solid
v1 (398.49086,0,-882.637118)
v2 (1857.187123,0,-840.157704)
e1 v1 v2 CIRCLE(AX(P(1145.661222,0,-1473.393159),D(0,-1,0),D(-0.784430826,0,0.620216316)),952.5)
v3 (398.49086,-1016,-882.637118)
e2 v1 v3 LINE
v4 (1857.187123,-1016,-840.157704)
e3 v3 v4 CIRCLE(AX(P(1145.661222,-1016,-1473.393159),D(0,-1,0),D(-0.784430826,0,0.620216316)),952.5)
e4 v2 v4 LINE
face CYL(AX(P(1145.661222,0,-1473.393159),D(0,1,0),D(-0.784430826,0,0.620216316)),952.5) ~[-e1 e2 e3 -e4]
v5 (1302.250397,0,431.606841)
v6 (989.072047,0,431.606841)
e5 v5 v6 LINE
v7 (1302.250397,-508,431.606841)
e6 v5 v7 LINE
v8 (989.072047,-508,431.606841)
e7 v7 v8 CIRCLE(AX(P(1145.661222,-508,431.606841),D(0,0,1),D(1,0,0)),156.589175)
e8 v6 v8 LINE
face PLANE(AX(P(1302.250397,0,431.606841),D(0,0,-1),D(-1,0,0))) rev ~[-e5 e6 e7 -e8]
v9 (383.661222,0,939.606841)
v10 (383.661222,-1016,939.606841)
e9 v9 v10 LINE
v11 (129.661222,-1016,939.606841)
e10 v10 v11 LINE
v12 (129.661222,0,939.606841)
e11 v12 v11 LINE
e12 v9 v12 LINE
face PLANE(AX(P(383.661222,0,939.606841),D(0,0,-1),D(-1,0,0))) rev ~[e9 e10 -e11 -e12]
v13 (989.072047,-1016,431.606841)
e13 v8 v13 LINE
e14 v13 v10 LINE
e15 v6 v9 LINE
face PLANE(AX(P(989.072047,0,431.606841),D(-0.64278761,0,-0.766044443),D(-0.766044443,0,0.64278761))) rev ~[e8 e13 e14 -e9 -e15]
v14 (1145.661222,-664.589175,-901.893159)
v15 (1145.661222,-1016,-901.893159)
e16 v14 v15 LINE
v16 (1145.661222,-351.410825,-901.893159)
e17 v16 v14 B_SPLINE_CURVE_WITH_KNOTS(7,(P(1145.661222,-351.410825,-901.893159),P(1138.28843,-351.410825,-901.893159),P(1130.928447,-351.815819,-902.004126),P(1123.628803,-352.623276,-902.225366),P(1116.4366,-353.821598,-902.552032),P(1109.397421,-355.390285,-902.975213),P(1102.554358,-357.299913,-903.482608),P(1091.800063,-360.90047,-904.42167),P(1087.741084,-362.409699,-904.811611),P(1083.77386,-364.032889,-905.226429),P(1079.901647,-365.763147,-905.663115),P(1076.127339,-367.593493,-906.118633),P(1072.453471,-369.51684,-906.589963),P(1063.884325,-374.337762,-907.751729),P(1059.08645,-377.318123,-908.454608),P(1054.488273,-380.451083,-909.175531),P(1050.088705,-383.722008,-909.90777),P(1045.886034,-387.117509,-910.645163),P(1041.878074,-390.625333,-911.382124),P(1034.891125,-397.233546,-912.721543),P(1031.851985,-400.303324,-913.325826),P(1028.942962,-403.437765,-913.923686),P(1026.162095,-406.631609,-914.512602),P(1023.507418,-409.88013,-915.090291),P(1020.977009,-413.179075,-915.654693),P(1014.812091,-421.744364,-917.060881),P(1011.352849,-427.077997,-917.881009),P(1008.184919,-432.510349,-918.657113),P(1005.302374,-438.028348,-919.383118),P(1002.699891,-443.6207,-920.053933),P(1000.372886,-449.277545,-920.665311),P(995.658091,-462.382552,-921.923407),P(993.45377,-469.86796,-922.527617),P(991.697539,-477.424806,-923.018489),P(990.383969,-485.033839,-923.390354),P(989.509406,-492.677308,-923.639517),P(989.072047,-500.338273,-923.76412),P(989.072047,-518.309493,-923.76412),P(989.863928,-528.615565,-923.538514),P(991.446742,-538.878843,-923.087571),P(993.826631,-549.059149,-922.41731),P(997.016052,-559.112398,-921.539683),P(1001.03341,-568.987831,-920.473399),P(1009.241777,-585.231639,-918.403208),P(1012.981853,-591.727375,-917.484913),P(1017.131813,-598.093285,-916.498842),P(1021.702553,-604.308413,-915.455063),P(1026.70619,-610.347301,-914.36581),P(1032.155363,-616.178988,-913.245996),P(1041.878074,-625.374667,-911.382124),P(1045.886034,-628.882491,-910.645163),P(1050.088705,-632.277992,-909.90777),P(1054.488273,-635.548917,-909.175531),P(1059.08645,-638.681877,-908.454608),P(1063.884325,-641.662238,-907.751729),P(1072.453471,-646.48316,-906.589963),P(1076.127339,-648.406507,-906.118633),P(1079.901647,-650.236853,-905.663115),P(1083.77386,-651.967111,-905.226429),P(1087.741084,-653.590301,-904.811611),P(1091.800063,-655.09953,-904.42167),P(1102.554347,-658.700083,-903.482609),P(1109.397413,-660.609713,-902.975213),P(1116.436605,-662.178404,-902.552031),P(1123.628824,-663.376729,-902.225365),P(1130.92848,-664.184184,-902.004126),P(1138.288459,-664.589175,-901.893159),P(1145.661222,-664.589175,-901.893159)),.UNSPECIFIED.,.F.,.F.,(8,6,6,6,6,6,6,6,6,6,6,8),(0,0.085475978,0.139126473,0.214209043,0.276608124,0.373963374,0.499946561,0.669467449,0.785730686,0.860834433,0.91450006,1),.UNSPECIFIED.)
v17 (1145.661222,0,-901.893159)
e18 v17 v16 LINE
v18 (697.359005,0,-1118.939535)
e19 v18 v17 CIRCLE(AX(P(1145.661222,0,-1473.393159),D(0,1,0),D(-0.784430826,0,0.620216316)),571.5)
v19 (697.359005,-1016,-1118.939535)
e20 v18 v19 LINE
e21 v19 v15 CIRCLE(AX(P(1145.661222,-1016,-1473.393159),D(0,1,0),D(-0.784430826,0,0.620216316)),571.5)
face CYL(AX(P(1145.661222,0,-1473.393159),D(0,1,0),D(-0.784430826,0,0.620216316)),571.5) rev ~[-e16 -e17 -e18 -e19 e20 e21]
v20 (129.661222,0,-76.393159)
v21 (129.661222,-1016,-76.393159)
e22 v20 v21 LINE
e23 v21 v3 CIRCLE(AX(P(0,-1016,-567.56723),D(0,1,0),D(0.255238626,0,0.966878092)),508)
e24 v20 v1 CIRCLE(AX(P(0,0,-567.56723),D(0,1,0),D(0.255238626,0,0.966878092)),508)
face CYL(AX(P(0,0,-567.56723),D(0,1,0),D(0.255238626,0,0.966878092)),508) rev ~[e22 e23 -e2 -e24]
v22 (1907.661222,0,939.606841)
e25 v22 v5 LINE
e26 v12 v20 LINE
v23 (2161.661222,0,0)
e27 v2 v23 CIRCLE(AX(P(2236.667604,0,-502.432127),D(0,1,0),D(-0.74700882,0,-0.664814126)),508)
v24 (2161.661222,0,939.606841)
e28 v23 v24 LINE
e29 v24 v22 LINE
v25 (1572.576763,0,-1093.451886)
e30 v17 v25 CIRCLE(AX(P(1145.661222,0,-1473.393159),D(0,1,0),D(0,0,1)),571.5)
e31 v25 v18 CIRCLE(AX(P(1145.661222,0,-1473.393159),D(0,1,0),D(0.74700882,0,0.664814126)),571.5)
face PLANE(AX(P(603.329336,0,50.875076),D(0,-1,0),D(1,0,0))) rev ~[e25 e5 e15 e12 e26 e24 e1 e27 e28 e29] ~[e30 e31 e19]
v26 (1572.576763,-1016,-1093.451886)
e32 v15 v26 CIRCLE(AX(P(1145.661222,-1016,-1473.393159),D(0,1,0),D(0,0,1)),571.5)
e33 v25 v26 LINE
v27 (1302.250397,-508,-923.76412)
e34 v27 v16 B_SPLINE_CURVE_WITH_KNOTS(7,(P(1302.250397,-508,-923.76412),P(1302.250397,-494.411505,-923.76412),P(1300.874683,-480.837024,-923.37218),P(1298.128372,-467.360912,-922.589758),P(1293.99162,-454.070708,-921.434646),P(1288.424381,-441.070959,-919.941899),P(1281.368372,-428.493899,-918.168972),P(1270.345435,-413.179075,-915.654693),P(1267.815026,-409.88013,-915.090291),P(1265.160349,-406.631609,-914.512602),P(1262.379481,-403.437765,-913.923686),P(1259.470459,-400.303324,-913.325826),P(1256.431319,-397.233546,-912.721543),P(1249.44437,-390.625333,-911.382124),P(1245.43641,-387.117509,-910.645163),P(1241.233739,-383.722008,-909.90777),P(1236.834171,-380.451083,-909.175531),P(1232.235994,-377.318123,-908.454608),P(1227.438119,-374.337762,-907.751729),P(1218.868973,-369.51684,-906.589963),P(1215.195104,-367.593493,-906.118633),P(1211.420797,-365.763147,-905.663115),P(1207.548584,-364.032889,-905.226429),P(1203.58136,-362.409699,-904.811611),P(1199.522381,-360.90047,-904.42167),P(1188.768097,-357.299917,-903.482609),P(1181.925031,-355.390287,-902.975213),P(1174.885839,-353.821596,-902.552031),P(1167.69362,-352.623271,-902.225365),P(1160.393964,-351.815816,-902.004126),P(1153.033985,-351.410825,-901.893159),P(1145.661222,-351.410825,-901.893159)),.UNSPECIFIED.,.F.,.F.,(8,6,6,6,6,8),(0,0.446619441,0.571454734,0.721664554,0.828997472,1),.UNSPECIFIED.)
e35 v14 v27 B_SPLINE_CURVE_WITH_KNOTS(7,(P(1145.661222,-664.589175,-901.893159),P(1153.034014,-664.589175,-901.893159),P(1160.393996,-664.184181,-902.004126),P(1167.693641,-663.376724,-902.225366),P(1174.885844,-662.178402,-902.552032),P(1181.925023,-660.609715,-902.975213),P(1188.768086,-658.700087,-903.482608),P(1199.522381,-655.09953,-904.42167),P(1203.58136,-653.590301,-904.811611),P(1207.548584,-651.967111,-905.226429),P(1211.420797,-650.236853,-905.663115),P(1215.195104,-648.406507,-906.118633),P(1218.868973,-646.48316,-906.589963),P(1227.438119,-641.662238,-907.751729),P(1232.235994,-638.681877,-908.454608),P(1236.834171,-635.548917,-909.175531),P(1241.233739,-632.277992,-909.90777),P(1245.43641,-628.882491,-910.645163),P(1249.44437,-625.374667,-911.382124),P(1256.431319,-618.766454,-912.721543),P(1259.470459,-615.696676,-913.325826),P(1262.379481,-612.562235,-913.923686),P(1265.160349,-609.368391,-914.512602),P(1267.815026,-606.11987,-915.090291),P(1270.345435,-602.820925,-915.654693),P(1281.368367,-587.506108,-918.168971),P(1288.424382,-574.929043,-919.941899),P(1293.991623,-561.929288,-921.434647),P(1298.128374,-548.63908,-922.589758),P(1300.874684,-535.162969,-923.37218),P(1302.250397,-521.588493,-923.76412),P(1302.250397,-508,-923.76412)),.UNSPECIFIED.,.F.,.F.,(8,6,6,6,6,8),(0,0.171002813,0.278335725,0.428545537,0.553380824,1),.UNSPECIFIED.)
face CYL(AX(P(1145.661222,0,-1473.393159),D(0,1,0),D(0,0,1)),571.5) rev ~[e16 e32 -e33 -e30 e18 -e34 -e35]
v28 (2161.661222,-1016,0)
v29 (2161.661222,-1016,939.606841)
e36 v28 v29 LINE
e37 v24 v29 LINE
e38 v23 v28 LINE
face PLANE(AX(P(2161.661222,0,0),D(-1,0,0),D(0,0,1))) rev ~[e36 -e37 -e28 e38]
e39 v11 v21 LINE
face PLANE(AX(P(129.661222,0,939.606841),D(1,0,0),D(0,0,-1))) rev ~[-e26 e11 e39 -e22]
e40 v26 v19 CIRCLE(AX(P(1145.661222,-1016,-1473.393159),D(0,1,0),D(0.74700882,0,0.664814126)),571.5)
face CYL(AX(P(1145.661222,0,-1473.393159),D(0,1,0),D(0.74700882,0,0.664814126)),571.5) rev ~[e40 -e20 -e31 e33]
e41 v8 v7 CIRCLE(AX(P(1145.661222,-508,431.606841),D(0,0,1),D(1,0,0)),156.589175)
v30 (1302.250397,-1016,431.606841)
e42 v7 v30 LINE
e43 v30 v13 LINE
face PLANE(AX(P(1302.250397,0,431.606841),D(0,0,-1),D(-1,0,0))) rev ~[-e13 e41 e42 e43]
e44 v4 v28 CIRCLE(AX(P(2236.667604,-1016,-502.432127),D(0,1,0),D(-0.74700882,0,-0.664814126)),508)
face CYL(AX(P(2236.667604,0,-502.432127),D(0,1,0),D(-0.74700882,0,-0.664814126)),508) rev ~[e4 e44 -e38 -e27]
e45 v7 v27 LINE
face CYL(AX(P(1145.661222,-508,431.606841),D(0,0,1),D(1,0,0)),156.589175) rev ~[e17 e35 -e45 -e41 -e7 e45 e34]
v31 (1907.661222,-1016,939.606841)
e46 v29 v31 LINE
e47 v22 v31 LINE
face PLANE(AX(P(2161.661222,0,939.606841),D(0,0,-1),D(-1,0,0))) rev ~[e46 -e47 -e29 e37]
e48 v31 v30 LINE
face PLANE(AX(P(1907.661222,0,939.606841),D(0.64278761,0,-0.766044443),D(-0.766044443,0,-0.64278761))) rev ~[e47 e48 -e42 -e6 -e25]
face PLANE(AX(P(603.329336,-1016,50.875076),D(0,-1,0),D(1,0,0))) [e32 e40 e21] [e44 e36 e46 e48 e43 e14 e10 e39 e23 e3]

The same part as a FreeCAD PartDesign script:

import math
import FreeCAD as App
import Part
import Sketcher
Q = App.Units.Quantity

doc = App.newDocument("Part")
body = doc.addObject("PartDesign::Body", "Body")

# Sketch on XZ plane
sketch1 = body.newObject("Sketcher::SketchObject", "Sketch")
sketch1.AttachmentSupport = (doc.getObject("XZ_Plane"), [""])
sketch1.MapMode = "FlatFace"
sketch1.addGeometry(Part.LineSegment(App.Vector(130, 940, 0), App.Vector(130, -76, 0)), False)
sketch1.addGeometry(Part.ArcOfCircle(Part.Circle(App.Vector(0, -568, 0), App.Vector(0, 0, 1), 508), math.radians(-38), math.radians(75)), False)
sketch1.addGeometry(Part.ArcOfCircle(Part.Circle(App.Vector(1146, -1473, 0), App.Vector(0, 0, 1), 952), math.radians(142), math.radians(402)), False)
sketch1.addGeometry(Part.ArcOfCircle(Part.Circle(App.Vector(2237, -502, 0), App.Vector(0, 0, 1), 508), math.radians(98), math.radians(222)), False)
sketch1.addGeometry(Part.LineSegment(App.Vector(2162, 0, 0), App.Vector(2162, 940, 0)), False)
sketch1.addGeometry(Part.LineSegment(App.Vector(2162, 940, 0), App.Vector(1908, 940, 0)), False)
sketch1.addGeometry(Part.LineSegment(App.Vector(1908, 940, 0), App.Vector(1302, 432, 0)), False)
sketch1.addGeometry(Part.LineSegment(App.Vector(1302, 432, 0), App.Vector(989, 432, 0)), False)
sketch1.addGeometry(Part.LineSegment(App.Vector(989, 432, 0), App.Vector(384, 940, 0)), False)
sketch1.addGeometry(Part.LineSegment(App.Vector(384, 940, 0), App.Vector(130, 940, 0)), False)
sketch1.addGeometry(Part.ArcOfCircle(Part.Circle(App.Vector(1146, -1473, 0), App.Vector(0, 0, 1), 572), math.radians(90), math.radians(142)), False)
sketch1.addGeometry(Part.ArcOfCircle(Part.Circle(App.Vector(1146, -1473, 0), App.Vector(0, 0, 1), 572), math.radians(42), math.radians(90)), False)
sketch1.addGeometry(Part.ArcOfCircle(Part.Circle(App.Vector(1146, -1473, 0), App.Vector(0, 0, 1), 572), math.radians(142), math.radians(402)), False)
sketch1.addConstraint(Sketcher.Constraint("Coincident", 0, 2, 1, 2))
sketch1.addConstraint(Sketcher.Constraint("Tangent", 1, 1, 2, 1))
sketch1.addConstraint(Sketcher.Constraint("Tangent", 2, 2, 3, 2))
sketch1.addConstraint(Sketcher.Constraint("Coincident", 3, 1, 4, 1))
sketch1.addConstraint(Sketcher.Constraint("Coincident", 4, 2, 5, 1))
sketch1.addConstraint(Sketcher.Constraint("Coincident", 5, 2, 6, 1))
sketch1.addConstraint(Sketcher.Constraint("Coincident", 6, 2, 7, 1))
sketch1.addConstraint(Sketcher.Constraint("Coincident", 7, 2, 8, 1))
sketch1.addConstraint(Sketcher.Constraint("Coincident", 8, 2, 9, 1))
sketch1.addConstraint(Sketcher.Constraint("Coincident", 9, 2, 0, 1))
sketch1.addConstraint(Sketcher.Constraint("Coincident", 10, 1, 11, 2))
sketch1.addConstraint(Sketcher.Constraint("Coincident", 11, 1, 12, 2))
sketch1.addConstraint(Sketcher.Constraint("Coincident", 12, 1, 10, 2))
sketch1.addConstraint(Sketcher.Constraint("Vertical", 0))
sketch1.addConstraint(Sketcher.Constraint("Vertical", 4))
sketch1.addConstraint(Sketcher.Constraint("Horizontal", 5))
sketch1.addConstraint(Sketcher.Constraint("Horizontal", 7))
sketch1.addConstraint(Sketcher.Constraint("Horizontal", 9))
sketch1.addConstraint(Sketcher.Constraint("Coincident", 10, 3, 2, 3))
sketch1.addConstraint(Sketcher.Constraint("Coincident", 11, 3, 2, 3))
sketch1.addConstraint(Sketcher.Constraint("Equal", 1, 3))
sketch1.addConstraint(Sketcher.Constraint("Equal", 11, 12))
sketch1.addConstraint(Sketcher.Constraint("PointOnObject", 1, 3, -2))
sketch1.addConstraint(Sketcher.Constraint("PointOnObject", 3, 1, -1))
sketch1.addConstraint(Sketcher.Constraint("Horizontal", 5, 2, 8, 2))
sketch1.addConstraint(Sketcher.Constraint("Vertical", 12, 3, 10, 1))
sketch1.addConstraint(Sketcher.Constraint("Equal", 5, 9))
sketch1.addConstraint(Sketcher.Constraint("Equal", 6, 8))
sketch1.addConstraint(Sketcher.Constraint("Radius", 1, Q("20 in")))
sketch1.addConstraint(Sketcher.Constraint("Radius", 2, Q("37.5 in")))
sketch1.addConstraint(Sketcher.Constraint("Radius", 10, Q("22.5 in")))
sketch1.addConstraint(Sketcher.Constraint("DistanceX", 5, 2, 5, 1, Q("10 in")))
sketch1.addConstraint(Sketcher.Constraint("DistanceY", 0, 2, 0, 1, Q("40 in")))
sketch1.addConstraint(Sketcher.Constraint("Angle", 6, Q("-140 deg")))
sketch1.addConstraint(Sketcher.Constraint("DistanceX", 0, 2, 12, 3, Q("40 in")))
sketch1.addConstraint(Sketcher.Constraint("DistanceY", 12, 3, 0, 2, Q("55 in")))
sketch1.addConstraint(Sketcher.Constraint("DistanceX", 0, 2, 4, 2, Q("80 in")))
sketch1.addConstraint(Sketcher.Constraint("DistanceY", 6, 2, 5, 2, Q("20 in")))
sketch1.addConstraint(Sketcher.Constraint("DistanceY", 4, 1, 4, 2, 939.606841))
sketch1.addConstraint(Sketcher.Constraint("DistanceX", 11, 1, 2, 2, 284.61036))
sketch1.addConstraint(Sketcher.Constraint("DistanceX", -1, 1, 12, 1, 697.359005))
pad1 = body.newObject("PartDesign::Pad", "Pad")
pad1.Profile = sketch1
pad1.Length = Q("40 in")

# Sketch on XY plane
sketch2 = body.newObject("Sketcher::SketchObject", "Sketch001")
sketch2.AttachmentSupport = (doc.getObject("XY_Plane"), [""])
sketch2.MapMode = "FlatFace"
sketch2.AttachmentOffset = App.Placement(App.Vector(0, 0, 431.606841), App.Rotation())
sketch2.addGeometry(Part.Circle(App.Vector(1146, -508, 0), App.Vector(0, 0, 1), 157), False)
sketch2.addConstraint(Sketcher.Constraint("DistanceY", 0, 3, -1, 1, Q("20 in")))
sketch2.addConstraint(Sketcher.Constraint("Diameter", 0, 313.17835))
sketch2.addConstraint(Sketcher.Constraint("DistanceX", -1, 1, 0, 3, 1145.661222))
pocket1 = body.newObject("PartDesign::Pocket", "Pocket")
pocket1.Profile = sketch2
pocket1.Length = 1355.371961

doc.recompute()
